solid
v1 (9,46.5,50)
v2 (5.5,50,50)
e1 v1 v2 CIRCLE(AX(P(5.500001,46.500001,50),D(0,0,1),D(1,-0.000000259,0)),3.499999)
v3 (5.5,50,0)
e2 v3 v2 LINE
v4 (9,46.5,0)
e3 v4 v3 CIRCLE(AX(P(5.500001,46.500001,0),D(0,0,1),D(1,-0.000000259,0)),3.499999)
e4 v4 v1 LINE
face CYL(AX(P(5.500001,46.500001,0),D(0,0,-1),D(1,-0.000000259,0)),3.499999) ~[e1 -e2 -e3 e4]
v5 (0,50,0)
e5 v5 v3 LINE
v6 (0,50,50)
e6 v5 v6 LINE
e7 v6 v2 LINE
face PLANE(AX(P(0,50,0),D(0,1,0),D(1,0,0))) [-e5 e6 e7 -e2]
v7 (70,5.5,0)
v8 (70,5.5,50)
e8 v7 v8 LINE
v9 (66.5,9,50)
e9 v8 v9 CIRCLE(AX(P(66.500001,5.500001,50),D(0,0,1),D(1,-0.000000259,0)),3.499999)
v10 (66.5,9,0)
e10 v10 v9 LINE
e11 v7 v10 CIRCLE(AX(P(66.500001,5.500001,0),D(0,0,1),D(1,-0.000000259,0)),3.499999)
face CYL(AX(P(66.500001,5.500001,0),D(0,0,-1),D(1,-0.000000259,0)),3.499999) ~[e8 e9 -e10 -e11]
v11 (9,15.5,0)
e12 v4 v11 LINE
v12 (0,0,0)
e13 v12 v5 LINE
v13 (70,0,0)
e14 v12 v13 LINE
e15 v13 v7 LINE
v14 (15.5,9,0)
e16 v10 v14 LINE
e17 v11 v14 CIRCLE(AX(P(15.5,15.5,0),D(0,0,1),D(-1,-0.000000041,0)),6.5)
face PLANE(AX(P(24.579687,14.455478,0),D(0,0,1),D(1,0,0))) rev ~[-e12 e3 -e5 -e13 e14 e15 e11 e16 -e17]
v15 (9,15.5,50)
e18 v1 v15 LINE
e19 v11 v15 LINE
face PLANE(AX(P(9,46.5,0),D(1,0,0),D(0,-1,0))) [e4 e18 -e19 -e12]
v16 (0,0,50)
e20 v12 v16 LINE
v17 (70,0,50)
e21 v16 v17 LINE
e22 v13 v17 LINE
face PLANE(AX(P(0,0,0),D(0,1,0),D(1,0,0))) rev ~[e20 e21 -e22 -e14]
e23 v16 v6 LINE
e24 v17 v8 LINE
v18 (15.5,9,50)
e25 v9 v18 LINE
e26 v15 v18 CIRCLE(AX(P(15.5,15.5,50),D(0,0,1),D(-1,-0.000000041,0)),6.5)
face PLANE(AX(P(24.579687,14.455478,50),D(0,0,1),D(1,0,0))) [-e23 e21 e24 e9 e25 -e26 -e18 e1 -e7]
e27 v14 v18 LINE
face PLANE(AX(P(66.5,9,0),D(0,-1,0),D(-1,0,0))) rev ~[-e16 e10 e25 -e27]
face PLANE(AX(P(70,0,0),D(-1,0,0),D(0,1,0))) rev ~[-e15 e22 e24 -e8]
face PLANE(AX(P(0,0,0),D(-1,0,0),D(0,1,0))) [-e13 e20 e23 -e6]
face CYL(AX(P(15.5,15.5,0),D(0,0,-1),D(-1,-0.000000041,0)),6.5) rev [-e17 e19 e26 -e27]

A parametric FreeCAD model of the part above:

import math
import FreeCAD as App
import Part
import Sketcher
from FreeCAD import Vector
Q = App.Units.Quantity

doc = App.newDocument("Part")
body = doc.addObject("PartDesign::Body", "Body")

# Sketch on XY plane
sketch1 = body.newObject("Sketcher::SketchObject", "Sketch")
sketch1.AttachmentSupport = (doc.getObject("XY_Plane"), [""])
sketch1.MapMode = "FlatFace"
sketch1.addGeometry(Part.LineSegment(Vector(0, 0, 0), Vector(70, 0, 0)), False)
sketch1.addGeometry(Part.LineSegment(Vector(70, 0, 0), Vector(70, 5.5, 0)), False)
sketch1.addGeometry(Part.ArcOfCircle(Part.Circle(Vector(66.5, 5.5, 0), Vector(0, 0, 1), 3.5), math.radians(0), math.radians(90)), False)
sketch1.addGeometry(Part.LineSegment(Vector(66.5, 9, 0), Vector(15.5, 9, 0)), False)
sketch1.addGeometry(Part.ArcOfCircle(Part.Circle(Vector(15.5, 15.5, 0), Vector(0, 0, 1), 6.5), math.radians(-180), math.radians(-90)), False)
sketch1.addGeometry(Part.LineSegment(Vector(9, 15.5, 0), Vector(9, 46.5, 0)), False)
sketch1.addGeometry(Part.ArcOfCircle(Part.Circle(Vector(5.5, 46.5, 0), Vector(0, 0, 1), 3.5), math.radians(0), math.radians(90)), False)
sketch1.addGeometry(Part.LineSegment(Vector(5.5, 50, 0), Vector(0, 50, 0)), False)
sketch1.addGeometry(Part.LineSegment(Vector(0, 50, 0), Vector(0, 0, 0)), False)
sketch1.addConstraint(Sketcher.Constraint("Coincident", 0, 2, 1, 1))
sketch1.addConstraint(Sketcher.Constraint("Tangent", 1, 2, 2, 1))
sketch1.addConstraint(Sketcher.Constraint("Tangent", 2, 2, 3, 1))
sketch1.addConstraint(Sketcher.Constraint("Tangent", 3, 2, 4, 2))
sketch1.addConstraint(Sketcher.Constraint("Tangent", 4, 1, 5, 1))
sketch1.addConstraint(Sketcher.Constraint("Tangent", 5, 2, 6, 1))
sketch1.addConstraint(Sketcher.Constraint("Tangent", 6, 2, 7, 1))
sketch1.addConstraint(Sketcher.Constraint("Coincident", 7, 2, 8, 1))
sketch1.addConstraint(Sketcher.Constraint("Coincident", 8, 2, 0, 1))
sketch1.addConstraint(Sketcher.Constraint("Horizontal", 0))
sketch1.addConstraint(Sketcher.Constraint("Vertical", 1))
sketch1.addConstraint(Sketcher.Constraint("Horizontal", 3))
sketch1.addConstraint(Sketcher.Constraint("Vertical", 5))
sketch1.addConstraint(Sketcher.Constraint("Horizontal", 7))
sketch1.addConstraint(Sketcher.Constraint("Vertical", 8))
sketch1.addConstraint(Sketcher.Constraint("Coincident", 8, 2, -1, 1))
sketch1.addConstraint(Sketcher.Constraint("Equal", 2, 6))
sketch1.addConstraint(Sketcher.Constraint("Equal", 7, 1))
sketch1.addConstraint(Sketcher.Constraint("Radius", 2, Q("3.499999 mm")))
sketch1.addConstraint(Sketcher.Constraint("Radius", 4, Q("6.5 mm")))
sketch1.addConstraint(Sketcher.Constraint("DistanceX", 0, 1, 0, 2, Q("70 mm")))
sketch1.addConstraint(Sketcher.Constraint("DistanceX", 3, 2, 3, 1, Q("51 mm")))
sketch1.addConstraint(Sketcher.Constraint("DistanceY", 5, 1, 5, 2, Q("31 mm")))
pad1 = body.newObject("PartDesign::Pad", "Pad")
pad1.Profile = sketch1
pad1.Length = 50

doc.recompute()
